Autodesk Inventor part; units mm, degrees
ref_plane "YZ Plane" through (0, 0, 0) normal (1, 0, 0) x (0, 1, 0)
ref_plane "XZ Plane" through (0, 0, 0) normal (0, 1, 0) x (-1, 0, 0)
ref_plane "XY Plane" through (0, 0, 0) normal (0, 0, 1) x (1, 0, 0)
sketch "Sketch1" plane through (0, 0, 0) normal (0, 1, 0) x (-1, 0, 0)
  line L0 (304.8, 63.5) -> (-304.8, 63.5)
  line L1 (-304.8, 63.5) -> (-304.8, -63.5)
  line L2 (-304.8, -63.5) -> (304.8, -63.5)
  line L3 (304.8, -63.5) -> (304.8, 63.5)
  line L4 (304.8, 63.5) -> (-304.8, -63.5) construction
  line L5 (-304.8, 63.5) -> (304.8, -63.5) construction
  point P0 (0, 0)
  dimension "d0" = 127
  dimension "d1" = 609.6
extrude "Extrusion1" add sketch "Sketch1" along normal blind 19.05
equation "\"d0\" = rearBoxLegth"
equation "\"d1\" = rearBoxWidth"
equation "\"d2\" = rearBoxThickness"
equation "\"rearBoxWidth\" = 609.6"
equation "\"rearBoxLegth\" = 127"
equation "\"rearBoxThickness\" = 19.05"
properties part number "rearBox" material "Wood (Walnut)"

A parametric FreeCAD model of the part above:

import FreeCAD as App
import Part
import Sketcher
Q = App.Units.Quantity


def add_polygon(sketch, points):
    """Adds a closed chain of lines whose ends are joined by coincident constraints."""
    first, n = sketch.GeometryCount, len(points)
    for a, b in zip(points, points[1:] + points[:1]):
        sketch.addGeometry(Part.LineSegment(App.Vector(*a, 0), App.Vector(*b, 0)), False)
    for i in range(n):
        sketch.addConstraint(Sketcher.Constraint("Coincident", first + i, 2, first + (i + 1) % n, 1))

doc = App.newDocument("Part")
body = doc.addObject("PartDesign::Body", "Body")

# Sketch on XZ plane
sketch1 = body.newObject("Sketcher::SketchObject", "Sketch")
sketch1.AttachmentSupport = (doc.getObject("XZ_Plane"), [""])
sketch1.MapMode = "FlatFace"
add_polygon(sketch1, [(-305, -64), (-305, 64), (305, 64), (305, -64)])  # lines 0-3
sketch1.addConstraint([
    Sketcher.Constraint("Vertical", 0),
    Sketcher.Constraint("Horizontal", 1),
    Sketcher.Constraint("Vertical", 2),
    Sketcher.Constraint("Horizontal", 3),
    Sketcher.Constraint("Symmetric", 0, 2, 2, 2, -1, 1),
    Sketcher.Constraint("DistanceX", 1, 1, 1, 2, Q("24 in")),
    Sketcher.Constraint("DistanceY", 0, 1, 0, 2, Q("5 in")),
])
pad1 = body.newObject("PartDesign::Pad", "Pad")
pad1.Profile = sketch1
pad1.Length = Q("0.75 in")
pad1.Reversed = True

doc.recompute()
